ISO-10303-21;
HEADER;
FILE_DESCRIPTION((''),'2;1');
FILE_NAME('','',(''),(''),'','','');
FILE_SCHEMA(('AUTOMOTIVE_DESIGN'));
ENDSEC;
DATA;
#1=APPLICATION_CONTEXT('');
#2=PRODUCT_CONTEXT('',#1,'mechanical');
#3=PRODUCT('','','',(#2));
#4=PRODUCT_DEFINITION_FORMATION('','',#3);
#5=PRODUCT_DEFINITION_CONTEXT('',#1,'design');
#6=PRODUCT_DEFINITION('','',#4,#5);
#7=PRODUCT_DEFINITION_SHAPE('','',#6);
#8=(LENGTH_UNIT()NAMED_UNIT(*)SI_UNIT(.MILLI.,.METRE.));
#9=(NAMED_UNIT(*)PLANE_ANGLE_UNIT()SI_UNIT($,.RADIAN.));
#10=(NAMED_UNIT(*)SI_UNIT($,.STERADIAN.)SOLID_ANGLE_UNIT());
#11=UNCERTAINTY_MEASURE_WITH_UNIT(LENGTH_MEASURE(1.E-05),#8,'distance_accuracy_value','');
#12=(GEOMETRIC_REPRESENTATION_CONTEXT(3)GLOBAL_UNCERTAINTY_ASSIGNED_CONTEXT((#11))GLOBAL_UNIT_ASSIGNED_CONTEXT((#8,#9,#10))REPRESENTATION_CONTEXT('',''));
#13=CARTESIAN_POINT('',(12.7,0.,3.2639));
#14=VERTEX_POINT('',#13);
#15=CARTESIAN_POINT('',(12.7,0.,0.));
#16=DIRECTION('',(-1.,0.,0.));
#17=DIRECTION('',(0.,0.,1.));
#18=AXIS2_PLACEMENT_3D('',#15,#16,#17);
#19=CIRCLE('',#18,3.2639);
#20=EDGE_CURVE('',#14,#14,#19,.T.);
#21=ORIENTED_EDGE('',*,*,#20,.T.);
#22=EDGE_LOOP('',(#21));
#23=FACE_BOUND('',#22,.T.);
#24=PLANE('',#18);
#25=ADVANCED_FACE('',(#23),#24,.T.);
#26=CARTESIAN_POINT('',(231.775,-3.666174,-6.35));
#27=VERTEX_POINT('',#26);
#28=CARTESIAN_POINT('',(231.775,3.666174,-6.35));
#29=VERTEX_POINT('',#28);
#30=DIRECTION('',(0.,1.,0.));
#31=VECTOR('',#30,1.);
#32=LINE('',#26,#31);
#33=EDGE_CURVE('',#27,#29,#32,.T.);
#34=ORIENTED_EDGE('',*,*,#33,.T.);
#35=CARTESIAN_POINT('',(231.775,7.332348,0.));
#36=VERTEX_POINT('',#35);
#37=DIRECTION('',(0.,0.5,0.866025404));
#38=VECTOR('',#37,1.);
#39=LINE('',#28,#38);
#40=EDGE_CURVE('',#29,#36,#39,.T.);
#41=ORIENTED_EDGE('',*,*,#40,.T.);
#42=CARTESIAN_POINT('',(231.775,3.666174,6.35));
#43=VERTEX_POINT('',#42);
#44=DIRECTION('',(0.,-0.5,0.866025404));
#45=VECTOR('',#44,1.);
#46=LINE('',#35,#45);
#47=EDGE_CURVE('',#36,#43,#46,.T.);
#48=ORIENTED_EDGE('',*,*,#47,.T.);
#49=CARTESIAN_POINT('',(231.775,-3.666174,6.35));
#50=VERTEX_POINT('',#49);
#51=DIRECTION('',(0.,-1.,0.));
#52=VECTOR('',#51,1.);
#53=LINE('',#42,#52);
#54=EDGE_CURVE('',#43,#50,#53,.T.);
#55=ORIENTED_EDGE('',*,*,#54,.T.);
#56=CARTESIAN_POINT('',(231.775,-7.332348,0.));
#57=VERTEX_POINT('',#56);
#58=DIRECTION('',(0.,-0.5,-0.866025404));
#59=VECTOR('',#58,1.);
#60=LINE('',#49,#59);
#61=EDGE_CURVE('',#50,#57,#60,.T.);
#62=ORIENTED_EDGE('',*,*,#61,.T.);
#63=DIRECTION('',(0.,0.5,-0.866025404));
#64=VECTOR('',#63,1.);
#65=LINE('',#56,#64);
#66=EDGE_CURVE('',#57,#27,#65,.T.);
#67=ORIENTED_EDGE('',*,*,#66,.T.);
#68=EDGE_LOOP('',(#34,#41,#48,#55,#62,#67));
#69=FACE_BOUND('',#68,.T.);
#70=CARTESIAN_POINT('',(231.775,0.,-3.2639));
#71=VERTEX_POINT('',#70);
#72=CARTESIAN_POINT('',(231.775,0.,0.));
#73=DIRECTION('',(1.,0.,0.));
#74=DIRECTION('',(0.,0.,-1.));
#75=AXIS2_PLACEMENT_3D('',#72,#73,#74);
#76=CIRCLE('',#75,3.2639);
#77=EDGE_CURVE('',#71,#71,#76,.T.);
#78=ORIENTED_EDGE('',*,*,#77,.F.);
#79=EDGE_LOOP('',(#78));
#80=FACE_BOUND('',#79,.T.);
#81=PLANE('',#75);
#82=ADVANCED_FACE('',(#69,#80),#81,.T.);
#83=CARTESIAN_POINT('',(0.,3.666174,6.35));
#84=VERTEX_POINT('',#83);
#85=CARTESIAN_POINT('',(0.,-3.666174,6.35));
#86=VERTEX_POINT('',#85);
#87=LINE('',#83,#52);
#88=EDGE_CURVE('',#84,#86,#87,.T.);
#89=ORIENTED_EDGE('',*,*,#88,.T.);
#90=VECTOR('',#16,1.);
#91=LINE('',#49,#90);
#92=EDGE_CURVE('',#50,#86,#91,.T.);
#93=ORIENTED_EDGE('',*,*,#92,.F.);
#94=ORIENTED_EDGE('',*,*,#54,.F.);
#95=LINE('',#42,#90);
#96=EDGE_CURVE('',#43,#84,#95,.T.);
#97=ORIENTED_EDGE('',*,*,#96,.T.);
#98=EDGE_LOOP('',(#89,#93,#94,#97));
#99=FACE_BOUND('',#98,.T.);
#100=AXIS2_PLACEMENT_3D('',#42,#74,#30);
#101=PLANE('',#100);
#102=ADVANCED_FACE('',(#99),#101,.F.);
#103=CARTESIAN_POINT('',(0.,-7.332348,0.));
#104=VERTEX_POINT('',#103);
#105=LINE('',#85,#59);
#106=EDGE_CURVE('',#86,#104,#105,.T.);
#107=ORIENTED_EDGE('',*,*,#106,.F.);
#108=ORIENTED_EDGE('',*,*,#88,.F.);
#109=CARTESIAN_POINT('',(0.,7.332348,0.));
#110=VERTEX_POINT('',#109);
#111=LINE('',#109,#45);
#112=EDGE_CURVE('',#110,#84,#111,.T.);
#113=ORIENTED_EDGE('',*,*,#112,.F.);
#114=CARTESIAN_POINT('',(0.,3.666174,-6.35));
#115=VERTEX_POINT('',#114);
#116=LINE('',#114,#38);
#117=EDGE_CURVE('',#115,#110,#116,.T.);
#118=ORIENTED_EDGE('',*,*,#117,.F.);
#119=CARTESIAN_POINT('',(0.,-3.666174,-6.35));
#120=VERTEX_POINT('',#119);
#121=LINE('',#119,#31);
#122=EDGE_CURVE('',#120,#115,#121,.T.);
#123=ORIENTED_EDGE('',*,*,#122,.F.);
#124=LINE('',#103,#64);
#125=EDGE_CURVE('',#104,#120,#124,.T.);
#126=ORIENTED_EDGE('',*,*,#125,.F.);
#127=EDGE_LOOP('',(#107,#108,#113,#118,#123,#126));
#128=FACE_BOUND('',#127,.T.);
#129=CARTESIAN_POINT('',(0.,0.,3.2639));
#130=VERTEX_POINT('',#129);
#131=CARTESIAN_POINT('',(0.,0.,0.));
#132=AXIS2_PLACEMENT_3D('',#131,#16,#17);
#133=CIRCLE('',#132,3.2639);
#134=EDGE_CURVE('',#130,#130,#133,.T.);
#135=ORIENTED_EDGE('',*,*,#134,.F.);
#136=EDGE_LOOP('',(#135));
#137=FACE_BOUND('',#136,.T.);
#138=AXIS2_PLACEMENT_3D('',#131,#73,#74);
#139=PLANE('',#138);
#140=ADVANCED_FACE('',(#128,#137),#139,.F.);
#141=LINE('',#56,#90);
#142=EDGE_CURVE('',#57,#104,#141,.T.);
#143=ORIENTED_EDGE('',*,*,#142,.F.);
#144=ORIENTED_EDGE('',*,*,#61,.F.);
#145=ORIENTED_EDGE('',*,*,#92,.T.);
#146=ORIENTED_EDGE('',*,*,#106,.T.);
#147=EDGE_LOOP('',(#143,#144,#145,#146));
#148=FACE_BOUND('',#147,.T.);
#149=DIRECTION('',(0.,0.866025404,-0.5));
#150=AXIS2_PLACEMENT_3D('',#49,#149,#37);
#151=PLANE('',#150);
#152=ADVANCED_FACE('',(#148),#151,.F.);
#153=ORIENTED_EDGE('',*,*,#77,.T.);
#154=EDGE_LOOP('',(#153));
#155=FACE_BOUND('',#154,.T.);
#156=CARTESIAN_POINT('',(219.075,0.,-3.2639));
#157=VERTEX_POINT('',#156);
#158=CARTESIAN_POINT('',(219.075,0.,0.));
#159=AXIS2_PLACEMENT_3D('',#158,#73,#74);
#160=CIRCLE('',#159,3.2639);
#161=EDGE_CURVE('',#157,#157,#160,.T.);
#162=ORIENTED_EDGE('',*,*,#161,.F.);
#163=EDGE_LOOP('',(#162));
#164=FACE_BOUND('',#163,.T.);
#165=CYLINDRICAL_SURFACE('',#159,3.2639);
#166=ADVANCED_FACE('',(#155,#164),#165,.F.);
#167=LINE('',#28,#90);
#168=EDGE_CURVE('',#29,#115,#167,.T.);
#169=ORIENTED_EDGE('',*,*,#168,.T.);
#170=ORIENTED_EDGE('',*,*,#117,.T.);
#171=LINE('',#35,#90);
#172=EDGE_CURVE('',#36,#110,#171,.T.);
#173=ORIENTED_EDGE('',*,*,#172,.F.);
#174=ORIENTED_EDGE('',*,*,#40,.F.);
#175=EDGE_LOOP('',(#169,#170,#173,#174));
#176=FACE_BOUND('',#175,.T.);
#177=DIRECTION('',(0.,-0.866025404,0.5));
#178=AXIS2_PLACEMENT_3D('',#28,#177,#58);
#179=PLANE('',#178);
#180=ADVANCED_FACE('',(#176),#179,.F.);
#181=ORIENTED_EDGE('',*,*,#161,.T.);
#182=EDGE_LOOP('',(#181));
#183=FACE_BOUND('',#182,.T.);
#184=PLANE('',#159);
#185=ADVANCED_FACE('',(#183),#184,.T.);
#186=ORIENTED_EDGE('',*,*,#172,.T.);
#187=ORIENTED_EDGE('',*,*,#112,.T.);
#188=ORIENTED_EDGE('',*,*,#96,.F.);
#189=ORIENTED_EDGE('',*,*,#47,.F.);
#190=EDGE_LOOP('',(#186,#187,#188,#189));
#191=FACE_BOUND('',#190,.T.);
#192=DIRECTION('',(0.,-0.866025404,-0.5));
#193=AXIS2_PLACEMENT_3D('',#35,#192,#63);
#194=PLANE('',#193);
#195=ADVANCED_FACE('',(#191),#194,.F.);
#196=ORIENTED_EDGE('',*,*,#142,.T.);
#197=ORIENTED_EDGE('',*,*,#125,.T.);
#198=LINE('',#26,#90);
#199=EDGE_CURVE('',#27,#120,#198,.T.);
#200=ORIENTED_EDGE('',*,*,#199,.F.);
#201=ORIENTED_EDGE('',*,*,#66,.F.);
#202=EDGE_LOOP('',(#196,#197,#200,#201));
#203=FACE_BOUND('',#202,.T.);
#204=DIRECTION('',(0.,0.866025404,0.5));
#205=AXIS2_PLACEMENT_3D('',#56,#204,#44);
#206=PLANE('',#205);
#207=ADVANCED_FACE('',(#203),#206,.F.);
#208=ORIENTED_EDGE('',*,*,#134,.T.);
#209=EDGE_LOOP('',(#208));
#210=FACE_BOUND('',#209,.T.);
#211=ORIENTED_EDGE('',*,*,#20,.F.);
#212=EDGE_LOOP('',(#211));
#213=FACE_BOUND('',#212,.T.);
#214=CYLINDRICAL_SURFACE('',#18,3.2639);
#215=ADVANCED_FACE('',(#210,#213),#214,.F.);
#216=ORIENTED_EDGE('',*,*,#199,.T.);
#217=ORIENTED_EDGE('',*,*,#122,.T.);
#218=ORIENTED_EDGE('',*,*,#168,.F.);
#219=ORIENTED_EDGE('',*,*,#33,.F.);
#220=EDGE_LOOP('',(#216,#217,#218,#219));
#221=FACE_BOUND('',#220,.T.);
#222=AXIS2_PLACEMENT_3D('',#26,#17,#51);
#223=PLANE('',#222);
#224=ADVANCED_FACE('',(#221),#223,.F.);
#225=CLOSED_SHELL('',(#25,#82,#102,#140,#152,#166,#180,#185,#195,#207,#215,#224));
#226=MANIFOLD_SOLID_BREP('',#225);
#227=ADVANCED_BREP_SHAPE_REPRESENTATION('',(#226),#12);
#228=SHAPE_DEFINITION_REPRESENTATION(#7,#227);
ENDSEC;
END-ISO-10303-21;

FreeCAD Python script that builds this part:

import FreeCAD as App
import Part
import Sketcher
Q = App.Units.Quantity

doc = App.newDocument("Part")
params = doc.addObject("Spreadsheet::Sheet", "Params")
for row, (alias, value) in enumerate([
    ("pad1_length", "9.125 in"),
    ("sketch2_diameter", "0.257 in"),
    ("pocket1_length", "0.5 in"),
    ("sketch3_diameter", "0.257 in"),
    ("pocket2_length", "0.5 in"),
], start=1):
    params.set(f"A{row}", alias)
    params.set(f"B{row}", "=" + value)
    params.setAlias(f"B{row}", alias)

body = doc.addObject("PartDesign::Body", "Body")

sketch1 = doc.addObject("Sketcher::SketchObject", "Sketch")
body.addObject(sketch1)
sketch1.AttachmentSupport = (doc.YZ_Plane, [""])
sketch1.MapMode = "FlatFace"
sketch1.addGeometry([
    Part.LineSegment(App.Vector(7, 0, 0), App.Vector(4, 6, 0)),
    Part.LineSegment(App.Vector(4, 6, 0), App.Vector(-4, 6, 0)),
    Part.LineSegment(App.Vector(-4, 6, 0), App.Vector(-7, 0, 0)),
    Part.LineSegment(App.Vector(-7, 0, 0), App.Vector(-4, -6, 0)),
    Part.LineSegment(App.Vector(-4, -6, 0), App.Vector(4, -6, 0)),
    Part.LineSegment(App.Vector(4, -6, 0), App.Vector(7, 0, 0)),
], False)
sketch1.addConstraint([
    Sketcher.Constraint("Coincident", 0, 2, 1, 1),
    Sketcher.Constraint("Coincident", 1, 2, 2, 1),
    Sketcher.Constraint("Coincident", 2, 2, 3, 1),
    Sketcher.Constraint("Coincident", 3, 2, 4, 1),
    Sketcher.Constraint("Coincident", 4, 2, 5, 1),
    Sketcher.Constraint("Coincident", 5, 2, 0, 1),
    Sketcher.Constraint("Horizontal", 1),
    Sketcher.Constraint("Horizontal", 4),
    Sketcher.Constraint("Symmetric", 0, 2, 3, 2, -1, 1),
    Sketcher.Constraint("Symmetric", 2, 2, 5, 2, -1, 1),
    Sketcher.Constraint("PointOnObject", 2, 2, -1),
    Sketcher.Constraint("Parallel", 2, 5),
    Sketcher.Constraint("Vertical", 1, 2, 3, 2),
    Sketcher.Constraint("Angle", 0, Q("120 deg")),
    Sketcher.Constraint("DistanceY", 3, 2, 1, 2, Q("0.5 in")),
    Sketcher.Constraint("DistanceX", 1, 2, 1, 1, Q("7.332348 mm")),
])
pad1 = doc.addObject("PartDesign::Pad", "Pad")
body.addObject(pad1)
pad1.Profile = sketch1
pad1.setExpression("Length", "Params.pad1_length")

sketch2 = doc.addObject("Sketcher::SketchObject", "Sketch001")
body.addObject(sketch2)
sketch2.AttachmentSupport = (doc.YZ_Plane, [""])
sketch2.MapMode = "FlatFace"
sketch2.AttachmentOffset = App.Placement(App.Vector(0, 0, 9.125 * 25.4), App.Rotation())
sketch2.addGeometry(Part.Circle(App.Vector(0, 0, 0), App.Vector(0, 0, 1), 3.3), False)
sketch2.addConstraint([
    Sketcher.Constraint("Coincident", 0, 3, -1, 1),
    Sketcher.Constraint("Diameter", 0, Q("0.257 in")),
])
sketch2.setExpression("Constraints[1]", "Params.sketch2_diameter")
pocket1 = doc.addObject("PartDesign::Pocket", "Pocket")
body.addObject(pocket1)
pocket1.Profile = sketch2
pocket1.setExpression("Length", "Params.pocket1_length")

sketch3 = doc.addObject("Sketcher::SketchObject", "Sketch002")
body.addObject(sketch3)
sketch3.AttachmentSupport = (doc.YZ_Plane, [""])
sketch3.MapMode = "FlatFace"
sketch3.addGeometry(Part.Circle(App.Vector(0, 0, 0), App.Vector(0, 0, 1), 3.3), False)
sketch3.addConstraint([
    Sketcher.Constraint("Coincident", 0, 3, -1, 1),
    Sketcher.Constraint("Diameter", 0, Q("0.257 in")),
])
sketch3.setExpression("Constraints[1]", "Params.sketch3_diameter")
pocket2 = doc.addObject("PartDesign::Pocket", "Pocket001")
body.addObject(pocket2)
pocket2.Profile = sketch3
pocket2.setExpression("Length", "Params.pocket2_length")
pocket2.Reversed = True

doc.recompute()
